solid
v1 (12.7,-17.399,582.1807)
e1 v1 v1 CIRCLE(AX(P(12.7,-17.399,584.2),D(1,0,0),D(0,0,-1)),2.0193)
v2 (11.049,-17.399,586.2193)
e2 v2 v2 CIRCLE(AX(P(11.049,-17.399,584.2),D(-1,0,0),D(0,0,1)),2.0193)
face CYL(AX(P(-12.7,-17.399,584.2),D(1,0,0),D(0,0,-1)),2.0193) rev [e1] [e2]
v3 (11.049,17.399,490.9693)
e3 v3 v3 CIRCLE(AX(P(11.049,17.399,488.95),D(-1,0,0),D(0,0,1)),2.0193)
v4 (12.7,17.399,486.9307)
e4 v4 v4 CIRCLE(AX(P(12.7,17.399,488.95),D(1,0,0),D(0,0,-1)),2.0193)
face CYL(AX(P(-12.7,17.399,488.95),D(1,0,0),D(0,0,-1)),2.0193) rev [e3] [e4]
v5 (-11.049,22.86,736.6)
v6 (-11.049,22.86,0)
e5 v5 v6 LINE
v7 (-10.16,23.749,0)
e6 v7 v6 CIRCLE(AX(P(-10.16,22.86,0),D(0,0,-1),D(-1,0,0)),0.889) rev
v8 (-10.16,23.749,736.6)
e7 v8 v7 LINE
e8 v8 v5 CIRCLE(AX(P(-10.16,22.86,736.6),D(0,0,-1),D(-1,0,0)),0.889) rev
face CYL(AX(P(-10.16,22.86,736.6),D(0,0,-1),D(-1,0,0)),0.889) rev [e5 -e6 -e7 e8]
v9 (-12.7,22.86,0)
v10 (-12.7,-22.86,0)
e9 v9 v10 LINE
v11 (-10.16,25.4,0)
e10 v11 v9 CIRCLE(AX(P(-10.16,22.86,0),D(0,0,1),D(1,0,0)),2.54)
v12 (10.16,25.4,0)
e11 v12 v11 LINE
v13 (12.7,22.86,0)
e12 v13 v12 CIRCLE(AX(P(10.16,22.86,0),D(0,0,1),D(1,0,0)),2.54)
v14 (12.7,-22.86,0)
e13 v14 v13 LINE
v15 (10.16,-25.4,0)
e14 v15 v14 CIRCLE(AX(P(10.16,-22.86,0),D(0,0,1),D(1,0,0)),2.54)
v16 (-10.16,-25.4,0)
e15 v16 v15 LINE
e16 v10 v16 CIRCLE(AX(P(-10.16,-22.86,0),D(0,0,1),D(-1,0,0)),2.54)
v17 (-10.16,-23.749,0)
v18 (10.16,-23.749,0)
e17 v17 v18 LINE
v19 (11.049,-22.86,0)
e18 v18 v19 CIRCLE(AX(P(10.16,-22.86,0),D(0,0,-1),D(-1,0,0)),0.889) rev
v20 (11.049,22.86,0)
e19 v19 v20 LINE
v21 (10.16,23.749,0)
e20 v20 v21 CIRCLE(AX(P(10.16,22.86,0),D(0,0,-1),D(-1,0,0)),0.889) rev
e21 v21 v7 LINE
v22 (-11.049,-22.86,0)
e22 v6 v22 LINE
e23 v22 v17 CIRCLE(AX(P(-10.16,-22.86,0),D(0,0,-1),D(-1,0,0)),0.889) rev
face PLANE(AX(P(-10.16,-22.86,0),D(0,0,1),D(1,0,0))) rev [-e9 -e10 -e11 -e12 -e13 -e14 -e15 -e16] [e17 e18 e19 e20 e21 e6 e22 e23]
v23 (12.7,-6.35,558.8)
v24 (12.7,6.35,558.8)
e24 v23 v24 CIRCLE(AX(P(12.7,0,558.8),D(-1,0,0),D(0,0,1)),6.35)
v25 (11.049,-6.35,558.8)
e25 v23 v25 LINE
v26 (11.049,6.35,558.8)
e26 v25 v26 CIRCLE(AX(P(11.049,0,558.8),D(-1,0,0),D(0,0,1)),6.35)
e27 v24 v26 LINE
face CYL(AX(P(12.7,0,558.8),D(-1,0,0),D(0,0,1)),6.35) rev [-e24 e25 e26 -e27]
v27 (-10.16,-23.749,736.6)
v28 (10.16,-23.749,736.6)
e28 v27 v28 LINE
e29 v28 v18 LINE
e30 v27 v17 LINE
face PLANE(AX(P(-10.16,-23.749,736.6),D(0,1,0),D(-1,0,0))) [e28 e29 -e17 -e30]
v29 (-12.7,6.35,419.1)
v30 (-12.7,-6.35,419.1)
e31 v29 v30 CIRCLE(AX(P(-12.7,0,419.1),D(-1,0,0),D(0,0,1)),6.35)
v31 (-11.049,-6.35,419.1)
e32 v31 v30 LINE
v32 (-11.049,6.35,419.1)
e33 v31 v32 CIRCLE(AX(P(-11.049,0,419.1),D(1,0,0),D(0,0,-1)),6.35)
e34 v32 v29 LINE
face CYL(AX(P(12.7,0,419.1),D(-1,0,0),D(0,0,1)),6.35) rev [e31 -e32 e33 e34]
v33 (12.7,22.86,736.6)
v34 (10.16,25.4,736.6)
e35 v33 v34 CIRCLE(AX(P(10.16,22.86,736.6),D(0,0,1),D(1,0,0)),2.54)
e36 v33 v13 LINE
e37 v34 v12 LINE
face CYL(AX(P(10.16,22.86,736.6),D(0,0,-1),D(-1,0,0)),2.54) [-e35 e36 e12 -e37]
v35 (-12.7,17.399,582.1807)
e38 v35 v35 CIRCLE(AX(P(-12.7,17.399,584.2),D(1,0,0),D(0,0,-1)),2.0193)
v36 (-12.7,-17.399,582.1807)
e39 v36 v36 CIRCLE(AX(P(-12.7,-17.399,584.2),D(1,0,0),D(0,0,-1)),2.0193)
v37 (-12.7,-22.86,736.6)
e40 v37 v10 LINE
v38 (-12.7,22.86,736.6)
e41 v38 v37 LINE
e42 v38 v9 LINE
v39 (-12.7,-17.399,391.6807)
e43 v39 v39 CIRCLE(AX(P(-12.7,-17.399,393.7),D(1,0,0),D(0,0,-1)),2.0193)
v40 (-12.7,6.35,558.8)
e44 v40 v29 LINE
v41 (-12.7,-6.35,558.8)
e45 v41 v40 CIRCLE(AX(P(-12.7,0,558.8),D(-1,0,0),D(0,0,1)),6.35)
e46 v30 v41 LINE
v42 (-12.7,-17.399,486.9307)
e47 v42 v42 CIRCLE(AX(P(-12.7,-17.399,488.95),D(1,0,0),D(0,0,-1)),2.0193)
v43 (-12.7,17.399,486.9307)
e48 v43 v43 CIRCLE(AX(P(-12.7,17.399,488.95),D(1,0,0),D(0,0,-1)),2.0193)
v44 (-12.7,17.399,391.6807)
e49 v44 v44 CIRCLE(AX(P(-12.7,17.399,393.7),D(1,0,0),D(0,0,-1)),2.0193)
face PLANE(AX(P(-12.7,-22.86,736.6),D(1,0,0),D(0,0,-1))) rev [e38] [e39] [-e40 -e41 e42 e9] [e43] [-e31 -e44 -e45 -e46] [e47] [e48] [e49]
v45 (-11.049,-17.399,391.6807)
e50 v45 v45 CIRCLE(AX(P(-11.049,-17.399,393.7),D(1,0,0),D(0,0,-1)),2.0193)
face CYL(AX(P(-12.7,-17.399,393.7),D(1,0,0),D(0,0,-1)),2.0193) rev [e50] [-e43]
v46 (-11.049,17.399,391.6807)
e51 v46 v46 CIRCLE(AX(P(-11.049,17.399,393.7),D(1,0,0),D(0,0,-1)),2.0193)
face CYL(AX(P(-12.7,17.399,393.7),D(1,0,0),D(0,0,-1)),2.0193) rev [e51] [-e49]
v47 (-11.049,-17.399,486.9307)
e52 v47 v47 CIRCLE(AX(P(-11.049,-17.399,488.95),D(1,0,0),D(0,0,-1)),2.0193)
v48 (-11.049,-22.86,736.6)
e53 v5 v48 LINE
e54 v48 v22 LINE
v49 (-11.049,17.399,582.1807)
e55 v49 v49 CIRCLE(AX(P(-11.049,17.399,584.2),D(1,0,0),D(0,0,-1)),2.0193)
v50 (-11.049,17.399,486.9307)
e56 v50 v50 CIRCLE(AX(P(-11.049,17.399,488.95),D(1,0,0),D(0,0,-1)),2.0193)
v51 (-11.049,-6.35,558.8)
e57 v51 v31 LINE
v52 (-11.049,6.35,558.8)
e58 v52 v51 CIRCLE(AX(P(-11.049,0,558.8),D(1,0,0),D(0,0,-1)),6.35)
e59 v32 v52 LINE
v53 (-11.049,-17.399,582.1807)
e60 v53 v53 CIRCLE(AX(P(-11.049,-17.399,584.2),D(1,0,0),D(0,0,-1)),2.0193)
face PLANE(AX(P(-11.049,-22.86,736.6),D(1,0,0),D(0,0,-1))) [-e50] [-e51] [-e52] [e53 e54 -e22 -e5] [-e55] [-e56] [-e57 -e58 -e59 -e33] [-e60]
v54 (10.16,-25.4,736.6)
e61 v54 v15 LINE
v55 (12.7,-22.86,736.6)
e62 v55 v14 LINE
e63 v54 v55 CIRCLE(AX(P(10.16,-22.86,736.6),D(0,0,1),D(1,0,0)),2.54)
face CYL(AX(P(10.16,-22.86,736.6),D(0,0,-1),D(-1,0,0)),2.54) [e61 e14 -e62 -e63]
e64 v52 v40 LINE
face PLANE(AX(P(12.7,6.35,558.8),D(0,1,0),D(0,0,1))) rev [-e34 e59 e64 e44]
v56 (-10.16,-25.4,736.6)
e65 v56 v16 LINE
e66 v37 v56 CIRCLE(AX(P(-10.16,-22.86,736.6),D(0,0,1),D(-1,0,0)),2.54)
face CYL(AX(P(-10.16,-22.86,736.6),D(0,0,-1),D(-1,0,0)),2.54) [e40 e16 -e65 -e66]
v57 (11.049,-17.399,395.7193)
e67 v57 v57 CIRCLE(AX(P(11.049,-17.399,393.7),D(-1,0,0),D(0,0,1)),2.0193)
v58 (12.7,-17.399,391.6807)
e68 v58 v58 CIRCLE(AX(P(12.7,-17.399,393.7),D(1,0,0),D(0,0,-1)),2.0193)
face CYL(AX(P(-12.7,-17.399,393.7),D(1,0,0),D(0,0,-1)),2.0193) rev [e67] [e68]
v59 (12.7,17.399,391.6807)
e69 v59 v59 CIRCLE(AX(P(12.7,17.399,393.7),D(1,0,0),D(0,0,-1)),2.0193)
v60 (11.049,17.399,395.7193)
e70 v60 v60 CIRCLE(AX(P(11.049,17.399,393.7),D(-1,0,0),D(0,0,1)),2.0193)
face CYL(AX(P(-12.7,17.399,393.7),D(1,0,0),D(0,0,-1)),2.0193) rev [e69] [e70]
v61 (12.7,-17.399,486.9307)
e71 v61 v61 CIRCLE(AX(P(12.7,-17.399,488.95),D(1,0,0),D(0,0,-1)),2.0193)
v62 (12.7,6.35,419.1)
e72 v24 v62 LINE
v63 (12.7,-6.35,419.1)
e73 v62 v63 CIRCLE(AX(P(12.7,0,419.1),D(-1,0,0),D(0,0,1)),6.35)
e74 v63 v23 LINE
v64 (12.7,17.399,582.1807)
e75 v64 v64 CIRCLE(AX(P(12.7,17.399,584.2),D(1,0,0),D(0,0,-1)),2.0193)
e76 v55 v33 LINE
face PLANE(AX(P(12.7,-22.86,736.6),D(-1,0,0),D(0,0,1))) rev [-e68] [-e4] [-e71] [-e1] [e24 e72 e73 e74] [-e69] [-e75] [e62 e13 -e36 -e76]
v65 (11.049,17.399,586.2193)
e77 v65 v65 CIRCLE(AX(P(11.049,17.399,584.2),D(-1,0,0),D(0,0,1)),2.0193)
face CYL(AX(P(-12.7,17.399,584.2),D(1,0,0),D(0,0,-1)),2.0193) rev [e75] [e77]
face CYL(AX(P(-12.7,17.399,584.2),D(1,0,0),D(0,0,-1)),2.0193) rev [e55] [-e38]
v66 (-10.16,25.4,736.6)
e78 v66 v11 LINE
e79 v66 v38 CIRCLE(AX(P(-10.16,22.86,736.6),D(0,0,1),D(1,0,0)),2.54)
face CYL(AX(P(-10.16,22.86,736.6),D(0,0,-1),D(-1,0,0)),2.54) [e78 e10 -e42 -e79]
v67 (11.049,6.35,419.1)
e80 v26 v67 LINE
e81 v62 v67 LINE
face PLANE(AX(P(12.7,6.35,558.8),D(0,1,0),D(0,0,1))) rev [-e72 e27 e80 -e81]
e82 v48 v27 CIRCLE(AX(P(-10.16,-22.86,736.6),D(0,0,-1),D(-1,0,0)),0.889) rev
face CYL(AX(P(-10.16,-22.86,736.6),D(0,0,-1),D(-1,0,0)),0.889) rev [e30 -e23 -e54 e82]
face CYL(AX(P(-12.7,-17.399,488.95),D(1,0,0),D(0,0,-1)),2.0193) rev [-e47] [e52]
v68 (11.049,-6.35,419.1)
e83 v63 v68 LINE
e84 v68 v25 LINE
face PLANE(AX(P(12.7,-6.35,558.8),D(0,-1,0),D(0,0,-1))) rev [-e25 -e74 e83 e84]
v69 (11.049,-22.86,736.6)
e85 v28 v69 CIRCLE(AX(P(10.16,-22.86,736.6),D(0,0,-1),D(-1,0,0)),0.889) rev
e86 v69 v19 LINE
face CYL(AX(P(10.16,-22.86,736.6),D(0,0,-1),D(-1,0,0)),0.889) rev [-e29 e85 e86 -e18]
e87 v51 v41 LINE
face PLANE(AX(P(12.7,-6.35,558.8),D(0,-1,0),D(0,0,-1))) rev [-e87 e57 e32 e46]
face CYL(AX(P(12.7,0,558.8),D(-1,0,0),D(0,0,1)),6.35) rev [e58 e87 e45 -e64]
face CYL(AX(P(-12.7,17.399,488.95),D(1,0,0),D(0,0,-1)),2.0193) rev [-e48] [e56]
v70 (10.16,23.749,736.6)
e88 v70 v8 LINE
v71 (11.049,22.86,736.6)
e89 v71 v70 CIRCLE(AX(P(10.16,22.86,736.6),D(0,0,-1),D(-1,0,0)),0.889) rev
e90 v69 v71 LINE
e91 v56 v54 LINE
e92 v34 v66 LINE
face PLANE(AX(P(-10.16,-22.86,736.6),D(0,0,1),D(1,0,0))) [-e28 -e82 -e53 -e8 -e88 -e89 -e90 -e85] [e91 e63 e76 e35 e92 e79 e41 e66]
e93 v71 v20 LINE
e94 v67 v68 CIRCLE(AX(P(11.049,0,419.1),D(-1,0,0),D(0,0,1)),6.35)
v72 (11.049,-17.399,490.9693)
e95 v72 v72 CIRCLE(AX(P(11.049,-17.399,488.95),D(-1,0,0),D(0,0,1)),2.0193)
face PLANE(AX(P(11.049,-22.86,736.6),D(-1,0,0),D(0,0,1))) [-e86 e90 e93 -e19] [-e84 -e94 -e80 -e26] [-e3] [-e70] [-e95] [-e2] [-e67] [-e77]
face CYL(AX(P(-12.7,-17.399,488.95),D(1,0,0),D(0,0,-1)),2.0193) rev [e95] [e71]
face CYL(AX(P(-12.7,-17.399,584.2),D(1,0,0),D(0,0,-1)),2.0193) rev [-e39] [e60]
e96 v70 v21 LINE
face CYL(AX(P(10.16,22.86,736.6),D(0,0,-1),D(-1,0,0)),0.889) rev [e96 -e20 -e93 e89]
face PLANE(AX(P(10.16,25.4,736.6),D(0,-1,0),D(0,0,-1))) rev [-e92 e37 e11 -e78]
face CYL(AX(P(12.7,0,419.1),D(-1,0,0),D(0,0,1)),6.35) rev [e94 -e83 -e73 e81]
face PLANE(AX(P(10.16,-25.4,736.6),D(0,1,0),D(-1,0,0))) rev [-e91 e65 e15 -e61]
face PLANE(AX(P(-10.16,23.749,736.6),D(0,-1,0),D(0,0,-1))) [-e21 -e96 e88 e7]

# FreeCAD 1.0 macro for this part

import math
import FreeCAD as App
import Part
import Sketcher
Q = App.Units.Quantity

doc = App.newDocument("Part")
params = doc.addObject("Spreadsheet::Sheet", "Params")
for row, (alias, value) in enumerate([
    ("sketch1_radius", "0.1 in"),
    ("sketch1_width", "0.8 in"),
    ("sketch1_height", "1.8 in"),
    ("sketch1_radius2", "0.035 in"),
    ("pad1_length", "29 in"),
    ("sketch2_radius", "0.25 in"),
    ("sketch2_height", "5.5 in"),
    ("sketch3_diameter", "0.159 in"),
], start=1):
    params.set(f"A{row}", alias)
    params.set(f"B{row}", "=" + value)
    params.setAlias(f"B{row}", alias)

body = doc.addObject("PartDesign::Body", "Body")

# Sketch on XY plane
sketch1 = body.newObject("Sketcher::SketchObject", "Sketch")
sketch1.AttachmentSupport = (doc.getObject("XY_Plane"), [""])
sketch1.MapMode = "FlatFace"
sketch1.addGeometry(Part.LineSegment(App.Vector(10.2, 25.4, 0), App.Vector(-10.2, 25.4, 0)), False)
sketch1.addGeometry(Part.ArcOfCircle(Part.Circle(App.Vector(-10.2, 22.9, 0), App.Vector(0, 0, 1), 2.5), math.radians(90), math.radians(180)), False)
sketch1.addGeometry(Part.LineSegment(App.Vector(-12.7, 22.9, 0), App.Vector(-12.7, -22.9, 0)), False)
sketch1.addGeometry(Part.ArcOfCircle(Part.Circle(App.Vector(-10.2, -22.9, 0), App.Vector(0, 0, 1), 2.5), math.radians(-180), math.radians(-90)), False)
sketch1.addGeometry(Part.LineSegment(App.Vector(-10.2, -25.4, 0), App.Vector(10.2, -25.4, 0)), False)
sketch1.addGeometry(Part.ArcOfCircle(Part.Circle(App.Vector(10.2, -22.9, 0), App.Vector(0, 0, 1), 2.5), math.radians(-90), math.radians(0)), False)
sketch1.addGeometry(Part.LineSegment(App.Vector(12.7, -22.9, 0), App.Vector(12.7, 22.9, 0)), False)
sketch1.addGeometry(Part.ArcOfCircle(Part.Circle(App.Vector(10.2, 22.9, 0), App.Vector(0, 0, 1), 2.5), math.radians(0), math.radians(90)), False)
sketch1.addGeometry(Part.LineSegment(App.Vector(-10.2, 23.7, 0), App.Vector(10.2, 23.7, 0)), False)
sketch1.addGeometry(Part.ArcOfCircle(Part.Circle(App.Vector(10.2, 22.9, 0), App.Vector(0, 0, 1), 0.9), math.radians(0), math.radians(90)), False)
sketch1.addGeometry(Part.LineSegment(App.Vector(11, 22.9, 0), App.Vector(11, -22.9, 0)), False)
sketch1.addGeometry(Part.ArcOfCircle(Part.Circle(App.Vector(10.2, -22.9, 0), App.Vector(0, 0, 1), 0.9), math.radians(-90), math.radians(0)), False)
sketch1.addGeometry(Part.LineSegment(App.Vector(10.2, -23.7, 0), App.Vector(-10.2, -23.7, 0)), False)
sketch1.addGeometry(Part.ArcOfCircle(Part.Circle(App.Vector(-10.2, -22.9, 0), App.Vector(0, 0, 1), 0.9), math.radians(-180), math.radians(-90)), False)
sketch1.addGeometry(Part.LineSegment(App.Vector(-11, -22.9, 0), App.Vector(-11, 22.9, 0)), False)
sketch1.addGeometry(Part.ArcOfCircle(Part.Circle(App.Vector(-10.2, 22.9, 0), App.Vector(0, 0, 1), 0.9), math.radians(90), math.radians(180)), False)
sketch1.addConstraint(Sketcher.Constraint("Tangent", 0, 2, 1, 1))
sketch1.addConstraint(Sketcher.Constraint("Tangent", 1, 2, 2, 1))
sketch1.addConstraint(Sketcher.Constraint("Tangent", 2, 2, 3, 1))
sketch1.addConstraint(Sketcher.Constraint("Tangent", 3, 2, 4, 1))
sketch1.addConstraint(Sketcher.Constraint("Tangent", 4, 2, 5, 1))
sketch1.addConstraint(Sketcher.Constraint("Tangent", 5, 2, 6, 1))
sketch1.addConstraint(Sketcher.Constraint("Tangent", 6, 2, 7, 1))
sketch1.addConstraint(Sketcher.Constraint("Tangent", 7, 2, 0, 1))
sketch1.addConstraint(Sketcher.Constraint("Tangent", 8, 2, 9, 2))
sketch1.addConstraint(Sketcher.Constraint("Tangent", 9, 1, 10, 1))
sketch1.addConstraint(Sketcher.Constraint("Tangent", 10, 2, 11, 2))
sketch1.addConstraint(Sketcher.Constraint("Tangent", 11, 1, 12, 1))
sketch1.addConstraint(Sketcher.Constraint("Tangent", 12, 2, 13, 2))
sketch1.addConstraint(Sketcher.Constraint("Tangent", 13, 1, 14, 1))
sketch1.addConstraint(Sketcher.Constraint("Tangent", 14, 2, 15, 2))
sketch1.addConstraint(Sketcher.Constraint("Tangent", 15, 1, 8, 1))
sketch1.addConstraint(Sketcher.Constraint("Horizontal", 0))
sketch1.addConstraint(Sketcher.Constraint("Vertical", 2))
sketch1.addConstraint(Sketcher.Constraint("Horizontal", 4))
sketch1.addConstraint(Sketcher.Constraint("Vertical", 6))
sketch1.addConstraint(Sketcher.Constraint("Horizontal", 8))
sketch1.addConstraint(Sketcher.Constraint("Vertical", 10))
sketch1.addConstraint(Sketcher.Constraint("Horizontal", 12))
sketch1.addConstraint(Sketcher.Constraint("Vertical", 14))
sketch1.addConstraint(Sketcher.Constraint("Coincident", 9, 3, 7, 3))
sketch1.addConstraint(Sketcher.Constraint("Coincident", 11, 3, 5, 3))
sketch1.addConstraint(Sketcher.Constraint("Coincident", 13, 3, 3, 3))
sketch1.addConstraint(Sketcher.Constraint("Equal", 1, 3))
sketch1.addConstraint(Sketcher.Constraint("Equal", 3, 5))
sketch1.addConstraint(Sketcher.Constraint("Equal", 5, 7))
sketch1.addConstraint(Sketcher.Constraint("Equal", 13, 15))
sketch1.addConstraint(Sketcher.Constraint("Symmetric", 1, 3, 5, 3, -1, 1))
sketch1.addConstraint(Sketcher.Constraint("Radius", 1, Q("0.1 in")))
sketch1.addConstraint(Sketcher.Constraint("DistanceX", 0, 2, 0, 1, Q("0.8 in")))
sketch1.addConstraint(Sketcher.Constraint("DistanceY", 2, 2, 2, 1, Q("1.8 in")))
sketch1.addConstraint(Sketcher.Constraint("Radius", 9, Q("0.035 in")))
sketch1.setExpression("Constraints[32]", "Params.sketch1_radius")
sketch1.setExpression("Constraints[33]", "Params.sketch1_width")
sketch1.setExpression("Constraints[34]", "Params.sketch1_height")
sketch1.setExpression("Constraints[35]", "Params.sketch1_radius2")
pad1 = body.newObject("PartDesign::Pad", "Pad")
pad1.Profile = sketch1
pad1.setExpression("Length", "Params.pad1_length")

# Sketch on YZ plane
sketch2 = body.newObject("Sketcher::SketchObject", "Sketch001")
sketch2.AttachmentSupport = (doc.getObject("YZ_Plane"), [""])
sketch2.MapMode = "FlatFace"
sketch2.AttachmentOffset = App.Placement(App.Vector(0, 0, -0.5 * 25.4), App.Rotation())
sketch2.addGeometry(Part.LineSegment(App.Vector(-6, 419, 0), App.Vector(-6, 559, 0)), False)
sketch2.addGeometry(Part.ArcOfCircle(Part.Circle(App.Vector(0, 559, 0), App.Vector(0, 0, 1), 6), math.radians(0), math.radians(180)), False)
sketch2.addGeometry(Part.LineSegment(App.Vector(6, 559, 0), App.Vector(6, 419, 0)), False)
sketch2.addGeometry(Part.ArcOfCircle(Part.Circle(App.Vector(0, 419, 0), App.Vector(0, 0, 1), 6), math.radians(180), math.radians(360)), False)
sketch2.addConstraint(Sketcher.Constraint("Tangent", 0, 2, 1, 2))
sketch2.addConstraint(Sketcher.Constraint("Tangent", 1, 1, 2, 1))
sketch2.addConstraint(Sketcher.Constraint("Tangent", 2, 2, 3, 2))
sketch2.addConstraint(Sketcher.Constraint("Tangent", 3, 1, 0, 1))
sketch2.addConstraint(Sketcher.Constraint("Vertical", 0))
sketch2.addConstraint(Sketcher.Constraint("Vertical", 2))
sketch2.addConstraint(Sketcher.Constraint("PointOnObject", 1, 3, -2))
sketch2.addConstraint(Sketcher.Constraint("Radius", 1, Q("0.25 in")))
sketch2.addConstraint(Sketcher.Constraint("DistanceY", 0, 1, 0, 2, Q("5.5 in")))
sketch2.addConstraint(Sketcher.Constraint("DistanceY", -1, 1, 1, 3, Q("22 in")))
sketch2.setExpression("Constraints[7]", "Params.sketch2_radius")
sketch2.setExpression("Constraints[8]", "Params.sketch2_height")
pocket1 = body.newObject("PartDesign::Pocket", "Pocket")
pocket1.Profile = sketch2
pocket1.Type = "ThroughAll"
pocket1.Reversed = True

# Sketch on YZ plane
sketch3 = body.newObject("Sketcher::SketchObject", "Sketch002")
sketch3.AttachmentSupport = (doc.getObject("YZ_Plane"), [""])
sketch3.MapMode = "FlatFace"
sketch3.AttachmentOffset = App.Placement(App.Vector(0, 0, 0.5 * 25.4), App.Rotation())
sketch3.addGeometry(Part.Circle(App.Vector(17.4, 393.7, 0), App.Vector(0, 0, 1), 2), False)
sketch3.addGeometry(Part.Circle(App.Vector(-17.4, 393.7, 0), App.Vector(0, 0, 1), 2), False)
sketch3.addGeometry(Part.Circle(App.Vector(17.4, 488.9, 0), App.Vector(0, 0, 1), 2), False)
sketch3.addGeometry(Part.Circle(App.Vector(-17.4, 488.9, 0), App.Vector(0, 0, 1), 2), False)
sketch3.addGeometry(Part.Circle(App.Vector(-17.4, 584.2, 0), App.Vector(0, 0, 1), 2), False)
sketch3.addGeometry(Part.Circle(App.Vector(17.4, 584.2, 0), App.Vector(0, 0, 1), 2), False)
sketch3.addConstraint(Sketcher.Constraint("Equal", 0, 1))
sketch3.addConstraint(Sketcher.Constraint("Equal", 1, 2))
sketch3.addConstraint(Sketcher.Constraint("Equal", 2, 3))
sketch3.addConstraint(Sketcher.Constraint("Equal", 3, 4))
sketch3.addConstraint(Sketcher.Constraint("Equal", 4, 5))
sketch3.addConstraint(Sketcher.Constraint("Symmetric", 0, 3, 1, 3, -2))
sketch3.addConstraint(Sketcher.Constraint("Symmetric", 2, 3, 3, 3, -2))
sketch3.addConstraint(Sketcher.Constraint("Symmetric", 4, 3, 5, 3, -2))
sketch3.addConstraint(Sketcher.Constraint("Vertical", 0, 3, 2, 3))
sketch3.addConstraint(Sketcher.Constraint("Vertical", 3, 3, 4, 3))
sketch3.addConstraint(Sketcher.Constraint("Diameter", 0, Q("0.159 in")))
sketch3.addConstraint(Sketcher.Constraint("DistanceY", -1, 1, 4, 3, Q("23 in")))
sketch3.addConstraint(Sketcher.Constraint("DistanceY", -1, 1, 0, 3, Q("15.5 in")))
sketch3.addConstraint(Sketcher.Constraint("DistanceY", -1, 1, 2, 3, Q("19.25 in")))
sketch3.addConstraint(Sketcher.Constraint("DistanceX", 1, 3, 0, 3, Q("1.37 in")))
sketch3.setExpression("Constraints[10]", "Params.sketch3_diameter")
pocket2 = body.newObject("PartDesign::Pocket", "Pocket001")
pocket2.Profile = sketch3
pocket2.Type = "ThroughAll"

doc.recompute()
